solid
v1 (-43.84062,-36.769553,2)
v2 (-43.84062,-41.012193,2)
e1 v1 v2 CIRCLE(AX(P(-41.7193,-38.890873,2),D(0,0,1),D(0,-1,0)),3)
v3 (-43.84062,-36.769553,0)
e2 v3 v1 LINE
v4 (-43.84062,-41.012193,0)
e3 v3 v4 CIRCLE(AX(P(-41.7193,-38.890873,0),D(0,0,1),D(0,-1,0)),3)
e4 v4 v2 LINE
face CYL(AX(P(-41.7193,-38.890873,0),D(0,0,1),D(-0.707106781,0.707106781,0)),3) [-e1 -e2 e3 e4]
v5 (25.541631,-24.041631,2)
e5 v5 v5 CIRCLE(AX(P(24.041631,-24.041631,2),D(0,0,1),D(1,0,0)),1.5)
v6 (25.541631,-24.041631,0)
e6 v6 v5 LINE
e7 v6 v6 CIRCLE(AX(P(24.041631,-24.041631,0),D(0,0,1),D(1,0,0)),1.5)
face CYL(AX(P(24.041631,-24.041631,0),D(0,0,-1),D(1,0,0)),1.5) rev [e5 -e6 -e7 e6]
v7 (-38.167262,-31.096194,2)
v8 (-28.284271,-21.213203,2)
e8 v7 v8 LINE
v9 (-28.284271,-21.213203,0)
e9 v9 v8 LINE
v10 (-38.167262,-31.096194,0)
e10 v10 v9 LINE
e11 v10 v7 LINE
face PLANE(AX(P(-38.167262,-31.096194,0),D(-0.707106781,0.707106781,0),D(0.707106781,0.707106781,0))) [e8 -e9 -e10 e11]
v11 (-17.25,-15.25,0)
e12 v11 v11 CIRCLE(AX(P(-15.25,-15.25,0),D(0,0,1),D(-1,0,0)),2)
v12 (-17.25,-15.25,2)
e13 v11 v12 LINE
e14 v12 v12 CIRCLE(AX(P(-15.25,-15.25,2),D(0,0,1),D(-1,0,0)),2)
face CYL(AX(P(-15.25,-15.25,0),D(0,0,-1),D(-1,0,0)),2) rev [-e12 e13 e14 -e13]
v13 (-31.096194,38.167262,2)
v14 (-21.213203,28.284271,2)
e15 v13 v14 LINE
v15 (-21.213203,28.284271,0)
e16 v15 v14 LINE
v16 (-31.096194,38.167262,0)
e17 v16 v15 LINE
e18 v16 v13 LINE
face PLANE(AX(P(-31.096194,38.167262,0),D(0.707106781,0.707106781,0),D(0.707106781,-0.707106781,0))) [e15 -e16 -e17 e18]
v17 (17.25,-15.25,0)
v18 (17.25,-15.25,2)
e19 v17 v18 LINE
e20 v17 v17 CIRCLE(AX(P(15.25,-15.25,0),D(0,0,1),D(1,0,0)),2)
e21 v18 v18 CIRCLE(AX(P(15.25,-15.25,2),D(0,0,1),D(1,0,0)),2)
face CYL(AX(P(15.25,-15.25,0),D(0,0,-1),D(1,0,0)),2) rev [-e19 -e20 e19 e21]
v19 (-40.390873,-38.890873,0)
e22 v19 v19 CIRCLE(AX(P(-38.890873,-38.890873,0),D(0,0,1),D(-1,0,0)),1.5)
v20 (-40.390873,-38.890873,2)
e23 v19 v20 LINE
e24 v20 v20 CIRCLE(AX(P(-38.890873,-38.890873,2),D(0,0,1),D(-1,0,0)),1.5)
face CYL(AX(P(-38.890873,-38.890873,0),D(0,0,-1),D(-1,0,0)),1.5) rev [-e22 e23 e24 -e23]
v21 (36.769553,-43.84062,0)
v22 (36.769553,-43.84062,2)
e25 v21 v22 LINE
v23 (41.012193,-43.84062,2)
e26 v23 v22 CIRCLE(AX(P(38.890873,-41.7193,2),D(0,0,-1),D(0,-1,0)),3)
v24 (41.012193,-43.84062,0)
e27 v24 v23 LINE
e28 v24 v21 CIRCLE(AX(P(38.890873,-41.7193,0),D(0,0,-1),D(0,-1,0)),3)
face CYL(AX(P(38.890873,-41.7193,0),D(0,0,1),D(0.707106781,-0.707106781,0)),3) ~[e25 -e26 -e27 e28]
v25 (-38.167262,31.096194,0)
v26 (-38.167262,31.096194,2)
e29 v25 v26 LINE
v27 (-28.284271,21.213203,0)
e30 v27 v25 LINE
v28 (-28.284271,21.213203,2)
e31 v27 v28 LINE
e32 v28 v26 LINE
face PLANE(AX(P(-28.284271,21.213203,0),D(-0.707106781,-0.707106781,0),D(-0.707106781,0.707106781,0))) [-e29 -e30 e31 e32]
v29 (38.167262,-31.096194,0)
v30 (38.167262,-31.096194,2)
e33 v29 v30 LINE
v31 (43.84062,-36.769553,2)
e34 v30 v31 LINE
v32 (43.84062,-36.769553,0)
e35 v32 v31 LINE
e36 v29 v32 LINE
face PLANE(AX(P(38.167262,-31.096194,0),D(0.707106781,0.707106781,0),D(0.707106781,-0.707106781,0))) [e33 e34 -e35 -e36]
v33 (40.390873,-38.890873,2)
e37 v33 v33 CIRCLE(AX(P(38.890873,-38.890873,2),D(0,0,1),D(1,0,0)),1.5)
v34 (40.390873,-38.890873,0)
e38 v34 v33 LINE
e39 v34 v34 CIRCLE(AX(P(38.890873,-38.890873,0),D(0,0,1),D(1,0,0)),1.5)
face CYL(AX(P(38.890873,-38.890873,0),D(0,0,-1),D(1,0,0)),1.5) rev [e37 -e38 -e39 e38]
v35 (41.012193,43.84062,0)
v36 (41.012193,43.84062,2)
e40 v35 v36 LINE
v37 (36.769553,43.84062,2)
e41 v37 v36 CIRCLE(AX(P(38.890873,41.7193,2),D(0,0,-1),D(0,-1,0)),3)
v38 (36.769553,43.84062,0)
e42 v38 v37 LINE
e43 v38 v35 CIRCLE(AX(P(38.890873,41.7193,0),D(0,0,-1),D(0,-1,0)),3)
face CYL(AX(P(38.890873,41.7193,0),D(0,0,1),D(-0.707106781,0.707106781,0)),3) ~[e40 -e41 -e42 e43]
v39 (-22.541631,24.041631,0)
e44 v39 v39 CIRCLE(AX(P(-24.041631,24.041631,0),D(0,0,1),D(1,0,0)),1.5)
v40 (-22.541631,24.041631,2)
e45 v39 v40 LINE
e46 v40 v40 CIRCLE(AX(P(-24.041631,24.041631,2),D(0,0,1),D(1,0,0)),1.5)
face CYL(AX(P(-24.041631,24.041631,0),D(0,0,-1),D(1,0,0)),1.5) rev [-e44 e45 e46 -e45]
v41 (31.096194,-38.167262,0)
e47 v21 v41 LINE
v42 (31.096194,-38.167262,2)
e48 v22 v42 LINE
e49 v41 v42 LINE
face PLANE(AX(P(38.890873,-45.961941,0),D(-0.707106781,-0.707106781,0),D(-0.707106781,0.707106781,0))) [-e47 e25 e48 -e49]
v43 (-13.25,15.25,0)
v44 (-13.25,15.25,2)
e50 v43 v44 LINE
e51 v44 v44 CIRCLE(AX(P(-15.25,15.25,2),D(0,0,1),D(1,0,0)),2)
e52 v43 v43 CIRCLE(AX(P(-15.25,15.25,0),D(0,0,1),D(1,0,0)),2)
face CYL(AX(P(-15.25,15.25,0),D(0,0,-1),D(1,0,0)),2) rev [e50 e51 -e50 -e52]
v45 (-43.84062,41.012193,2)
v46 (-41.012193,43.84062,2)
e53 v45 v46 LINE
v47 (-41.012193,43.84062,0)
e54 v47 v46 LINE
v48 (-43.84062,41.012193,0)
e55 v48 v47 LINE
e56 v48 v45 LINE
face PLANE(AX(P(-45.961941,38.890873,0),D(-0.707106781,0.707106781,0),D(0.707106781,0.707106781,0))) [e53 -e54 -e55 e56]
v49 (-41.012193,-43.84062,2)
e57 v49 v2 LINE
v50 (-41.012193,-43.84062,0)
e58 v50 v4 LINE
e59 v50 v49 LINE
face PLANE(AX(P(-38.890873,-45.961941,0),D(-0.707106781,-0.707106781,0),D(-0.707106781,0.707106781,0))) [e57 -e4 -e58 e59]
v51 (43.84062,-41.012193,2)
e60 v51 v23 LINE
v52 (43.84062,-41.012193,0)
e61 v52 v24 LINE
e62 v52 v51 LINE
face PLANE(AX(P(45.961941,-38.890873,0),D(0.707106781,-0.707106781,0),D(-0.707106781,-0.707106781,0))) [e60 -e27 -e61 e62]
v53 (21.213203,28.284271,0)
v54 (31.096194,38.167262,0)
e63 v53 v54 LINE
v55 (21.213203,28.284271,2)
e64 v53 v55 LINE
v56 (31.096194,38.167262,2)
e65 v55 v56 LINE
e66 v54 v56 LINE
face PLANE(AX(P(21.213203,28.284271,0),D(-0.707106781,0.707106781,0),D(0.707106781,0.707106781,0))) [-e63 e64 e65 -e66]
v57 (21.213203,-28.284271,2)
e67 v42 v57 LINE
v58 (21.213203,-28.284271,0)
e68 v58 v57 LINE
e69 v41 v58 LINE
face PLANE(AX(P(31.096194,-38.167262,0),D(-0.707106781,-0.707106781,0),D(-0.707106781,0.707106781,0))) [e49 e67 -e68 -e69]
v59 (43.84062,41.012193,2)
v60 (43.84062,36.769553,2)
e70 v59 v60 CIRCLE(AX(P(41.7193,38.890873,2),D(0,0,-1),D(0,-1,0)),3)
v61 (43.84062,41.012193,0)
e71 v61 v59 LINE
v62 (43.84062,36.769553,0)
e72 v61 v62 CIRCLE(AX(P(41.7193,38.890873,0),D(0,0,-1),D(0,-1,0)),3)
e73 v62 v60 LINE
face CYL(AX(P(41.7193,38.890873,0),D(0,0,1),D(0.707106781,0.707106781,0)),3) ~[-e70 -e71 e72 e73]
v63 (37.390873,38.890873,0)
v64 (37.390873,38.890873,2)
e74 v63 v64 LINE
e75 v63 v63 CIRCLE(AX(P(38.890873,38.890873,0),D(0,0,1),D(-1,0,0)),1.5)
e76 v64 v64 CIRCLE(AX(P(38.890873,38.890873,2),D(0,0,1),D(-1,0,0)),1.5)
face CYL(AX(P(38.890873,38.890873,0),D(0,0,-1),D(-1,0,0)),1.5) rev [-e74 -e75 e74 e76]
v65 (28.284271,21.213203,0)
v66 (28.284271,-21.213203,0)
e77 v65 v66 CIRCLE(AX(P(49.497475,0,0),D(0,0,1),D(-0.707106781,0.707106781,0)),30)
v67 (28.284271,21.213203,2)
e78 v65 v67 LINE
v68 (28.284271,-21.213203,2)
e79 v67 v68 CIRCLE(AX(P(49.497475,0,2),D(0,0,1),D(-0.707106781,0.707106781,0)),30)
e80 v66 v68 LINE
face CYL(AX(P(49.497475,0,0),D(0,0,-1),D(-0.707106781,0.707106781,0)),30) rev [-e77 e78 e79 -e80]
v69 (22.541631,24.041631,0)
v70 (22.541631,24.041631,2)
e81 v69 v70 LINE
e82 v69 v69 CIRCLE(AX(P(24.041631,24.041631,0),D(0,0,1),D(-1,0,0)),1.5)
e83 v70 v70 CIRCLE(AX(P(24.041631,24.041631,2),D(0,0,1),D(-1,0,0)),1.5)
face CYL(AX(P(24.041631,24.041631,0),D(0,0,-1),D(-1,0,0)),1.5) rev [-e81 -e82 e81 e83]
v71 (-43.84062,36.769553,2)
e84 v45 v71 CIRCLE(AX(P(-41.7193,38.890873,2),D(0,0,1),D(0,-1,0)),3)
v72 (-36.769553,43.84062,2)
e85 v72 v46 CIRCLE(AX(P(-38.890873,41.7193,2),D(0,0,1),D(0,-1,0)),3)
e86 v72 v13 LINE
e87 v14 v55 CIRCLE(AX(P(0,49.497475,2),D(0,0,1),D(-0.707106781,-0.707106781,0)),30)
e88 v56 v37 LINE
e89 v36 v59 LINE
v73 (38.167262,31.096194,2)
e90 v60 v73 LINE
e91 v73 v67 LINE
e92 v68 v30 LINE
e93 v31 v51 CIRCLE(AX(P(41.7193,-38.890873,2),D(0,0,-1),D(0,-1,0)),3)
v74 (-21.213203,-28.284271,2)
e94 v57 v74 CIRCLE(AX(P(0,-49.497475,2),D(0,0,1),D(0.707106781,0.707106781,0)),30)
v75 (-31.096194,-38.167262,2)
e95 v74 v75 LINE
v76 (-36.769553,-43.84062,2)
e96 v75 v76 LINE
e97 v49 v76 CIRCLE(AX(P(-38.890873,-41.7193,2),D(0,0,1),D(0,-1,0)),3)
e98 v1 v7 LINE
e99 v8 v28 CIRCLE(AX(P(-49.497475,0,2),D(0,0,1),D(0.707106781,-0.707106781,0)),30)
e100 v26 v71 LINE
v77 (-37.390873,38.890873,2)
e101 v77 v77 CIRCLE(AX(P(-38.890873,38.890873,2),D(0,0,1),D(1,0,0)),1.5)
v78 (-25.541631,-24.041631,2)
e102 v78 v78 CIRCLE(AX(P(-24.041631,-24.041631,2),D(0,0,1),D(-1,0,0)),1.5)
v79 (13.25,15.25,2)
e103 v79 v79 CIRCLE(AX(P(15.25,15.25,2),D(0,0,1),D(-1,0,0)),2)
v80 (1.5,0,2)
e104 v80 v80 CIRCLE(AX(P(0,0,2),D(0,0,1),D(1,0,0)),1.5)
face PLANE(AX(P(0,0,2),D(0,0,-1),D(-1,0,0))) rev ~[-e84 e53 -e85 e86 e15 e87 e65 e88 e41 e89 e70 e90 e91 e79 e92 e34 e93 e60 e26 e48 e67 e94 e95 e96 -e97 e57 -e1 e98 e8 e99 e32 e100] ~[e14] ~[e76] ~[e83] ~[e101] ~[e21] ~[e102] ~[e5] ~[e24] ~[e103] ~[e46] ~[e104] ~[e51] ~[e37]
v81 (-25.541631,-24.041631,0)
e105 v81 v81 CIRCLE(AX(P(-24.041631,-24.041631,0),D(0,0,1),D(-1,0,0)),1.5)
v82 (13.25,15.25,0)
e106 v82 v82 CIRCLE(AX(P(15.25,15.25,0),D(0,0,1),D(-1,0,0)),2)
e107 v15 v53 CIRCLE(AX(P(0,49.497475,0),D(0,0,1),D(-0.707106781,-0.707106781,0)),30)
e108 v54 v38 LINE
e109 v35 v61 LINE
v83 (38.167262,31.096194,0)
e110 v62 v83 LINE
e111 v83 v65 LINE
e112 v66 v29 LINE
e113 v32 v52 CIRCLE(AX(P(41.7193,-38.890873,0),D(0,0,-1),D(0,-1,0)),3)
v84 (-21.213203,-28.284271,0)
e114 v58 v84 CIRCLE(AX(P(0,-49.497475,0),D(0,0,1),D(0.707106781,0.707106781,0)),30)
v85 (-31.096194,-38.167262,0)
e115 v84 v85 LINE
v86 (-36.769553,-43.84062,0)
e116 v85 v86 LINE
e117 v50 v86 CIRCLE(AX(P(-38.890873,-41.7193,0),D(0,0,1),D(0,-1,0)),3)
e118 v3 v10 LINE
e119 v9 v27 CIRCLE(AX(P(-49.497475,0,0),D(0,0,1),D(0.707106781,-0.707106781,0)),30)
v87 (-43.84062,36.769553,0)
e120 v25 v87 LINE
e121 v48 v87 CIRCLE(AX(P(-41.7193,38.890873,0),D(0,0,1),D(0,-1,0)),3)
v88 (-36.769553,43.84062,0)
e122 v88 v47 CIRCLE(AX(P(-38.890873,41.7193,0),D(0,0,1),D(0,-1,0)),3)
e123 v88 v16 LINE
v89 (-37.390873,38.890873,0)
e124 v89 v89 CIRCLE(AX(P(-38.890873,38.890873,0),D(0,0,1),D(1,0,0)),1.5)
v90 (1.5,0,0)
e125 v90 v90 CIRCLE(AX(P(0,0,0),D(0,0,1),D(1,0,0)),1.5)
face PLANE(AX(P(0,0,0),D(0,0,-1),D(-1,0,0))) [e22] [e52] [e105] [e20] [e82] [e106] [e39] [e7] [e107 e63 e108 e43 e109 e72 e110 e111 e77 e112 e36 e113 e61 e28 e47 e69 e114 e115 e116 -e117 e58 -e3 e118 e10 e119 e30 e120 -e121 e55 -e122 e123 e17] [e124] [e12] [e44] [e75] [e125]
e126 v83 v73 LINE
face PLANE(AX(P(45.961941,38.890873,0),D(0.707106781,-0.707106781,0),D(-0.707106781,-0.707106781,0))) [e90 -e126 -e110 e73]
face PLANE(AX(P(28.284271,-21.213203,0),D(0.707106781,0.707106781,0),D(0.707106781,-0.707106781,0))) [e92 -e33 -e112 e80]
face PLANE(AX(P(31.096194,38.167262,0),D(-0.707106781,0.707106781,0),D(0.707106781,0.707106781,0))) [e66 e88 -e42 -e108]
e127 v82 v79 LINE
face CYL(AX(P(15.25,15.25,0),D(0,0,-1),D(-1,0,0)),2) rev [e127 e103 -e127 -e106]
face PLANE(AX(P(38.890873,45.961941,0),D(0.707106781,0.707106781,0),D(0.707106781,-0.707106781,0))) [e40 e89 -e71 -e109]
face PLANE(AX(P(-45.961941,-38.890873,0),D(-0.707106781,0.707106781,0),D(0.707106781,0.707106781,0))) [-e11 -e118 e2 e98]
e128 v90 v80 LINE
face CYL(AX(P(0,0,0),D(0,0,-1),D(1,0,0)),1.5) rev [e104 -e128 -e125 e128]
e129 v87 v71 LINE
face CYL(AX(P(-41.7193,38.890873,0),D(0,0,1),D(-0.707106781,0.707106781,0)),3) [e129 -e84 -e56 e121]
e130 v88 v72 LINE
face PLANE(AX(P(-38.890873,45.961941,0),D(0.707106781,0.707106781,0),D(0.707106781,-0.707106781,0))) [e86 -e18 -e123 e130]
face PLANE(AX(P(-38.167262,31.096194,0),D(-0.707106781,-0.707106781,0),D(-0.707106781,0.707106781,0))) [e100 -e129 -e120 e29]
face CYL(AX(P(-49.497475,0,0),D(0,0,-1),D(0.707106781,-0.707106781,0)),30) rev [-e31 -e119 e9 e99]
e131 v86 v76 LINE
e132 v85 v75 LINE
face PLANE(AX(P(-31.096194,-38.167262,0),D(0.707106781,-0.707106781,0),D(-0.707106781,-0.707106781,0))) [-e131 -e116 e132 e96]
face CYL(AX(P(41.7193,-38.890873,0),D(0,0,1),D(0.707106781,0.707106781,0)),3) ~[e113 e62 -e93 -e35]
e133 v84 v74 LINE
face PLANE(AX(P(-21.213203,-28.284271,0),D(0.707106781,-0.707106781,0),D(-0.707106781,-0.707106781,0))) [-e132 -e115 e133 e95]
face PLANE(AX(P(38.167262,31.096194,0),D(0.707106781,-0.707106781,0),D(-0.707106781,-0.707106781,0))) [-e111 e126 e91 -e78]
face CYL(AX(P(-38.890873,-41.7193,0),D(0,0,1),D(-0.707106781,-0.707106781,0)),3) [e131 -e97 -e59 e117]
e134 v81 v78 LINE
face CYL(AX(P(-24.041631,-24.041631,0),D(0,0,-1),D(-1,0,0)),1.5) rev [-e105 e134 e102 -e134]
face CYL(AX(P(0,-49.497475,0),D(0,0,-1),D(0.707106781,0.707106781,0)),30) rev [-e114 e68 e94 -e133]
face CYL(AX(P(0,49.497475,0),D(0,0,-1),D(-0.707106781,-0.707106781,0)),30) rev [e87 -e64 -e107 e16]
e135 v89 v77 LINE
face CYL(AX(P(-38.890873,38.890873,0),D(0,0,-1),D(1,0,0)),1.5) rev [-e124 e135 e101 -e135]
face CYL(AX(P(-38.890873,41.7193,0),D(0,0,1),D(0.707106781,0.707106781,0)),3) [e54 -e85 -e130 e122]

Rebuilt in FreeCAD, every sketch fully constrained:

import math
import FreeCAD as App
import Part
import Sketcher

V = App.Vector


def edges_at(feature, points):
    """Names of the edges that pass closest to the given points."""
    edges = feature.Shape.Edges
    near = lambda p: min(range(len(edges)), key=lambda i: edges[i].distToShape(Part.Vertex(*p))[0])
    return sorted({f"Edge{near(p) + 1}" for p in points})

doc = App.newDocument("Part")
body = doc.addObject("PartDesign::Body", "Body")

# Sketch on XY plane
sketch1 = doc.addObject("Sketcher::SketchObject", "Sketch")
body.addObject(sketch1)
sketch1.AttachmentSupport = (doc.XY_Plane, [""])
sketch1.MapMode = "FlatFace"
sketch1.addGeometry([
    Part.LineSegment(V(-21.2, 28.3, 0), V(-31.1, 38.2, 0)),  # 0
    Part.LineSegment(V(-31.1, 38.2, 0), V(-38.9, 46, 0)),  # 1
    Part.LineSegment(V(-38.9, 46, 0), V(-46, 38.9, 0)),  # 2
    Part.LineSegment(V(-46, 38.9, 0), V(-38.2, 31.1, 0)),  # 3
    Part.LineSegment(V(-38.2, 31.1, 0), V(-28.3, 21.2, 0)),  # 4
    Part.ArcOfCircle(Part.Circle(V(-49.5, 0, 0), V(0, 0, 1), 30), math.radians(-45), math.radians(45)),  # 5
    Part.LineSegment(V(-28.3, -21.2, 0), V(-38.2, -31.1, 0)),  # 6
    Part.LineSegment(V(-38.2, -31.1, 0), V(-46, -38.9, 0)),  # 7
    Part.LineSegment(V(-46, -38.9, 0), V(-38.9, -46, 0)),  # 8
    Part.LineSegment(V(-38.9, -46, 0), V(-31.1, -38.2, 0)),  # 9
    Part.LineSegment(V(-31.1, -38.2, 0), V(-21.2, -28.3, 0)),  # 10
    Part.ArcOfCircle(Part.Circle(V(0, -49.5, 0), V(0, 0, 1), 30), math.radians(45), math.radians(135)),  # 11
    Part.LineSegment(V(21.2, -28.3, 0), V(31.1, -38.2, 0)),  # 12
    Part.LineSegment(V(31.1, -38.2, 0), V(38.9, -46, 0)),  # 13
    Part.LineSegment(V(38.9, -46, 0), V(46, -38.9, 0)),  # 14
    Part.LineSegment(V(46, -38.9, 0), V(38.2, -31.1, 0)),  # 15
    Part.LineSegment(V(38.2, -31.1, 0), V(28.3, -21.2, 0)),  # 16
    Part.ArcOfCircle(Part.Circle(V(49.5, 0, 0), V(0, 0, 1), 30), math.radians(135), math.radians(225)),  # 17
    Part.LineSegment(V(28.3, 21.2, 0), V(38.2, 31.1, 0)),  # 18
    Part.LineSegment(V(38.2, 31.1, 0), V(46, 38.9, 0)),  # 19
    Part.LineSegment(V(46, 38.9, 0), V(38.9, 46, 0)),  # 20
    Part.LineSegment(V(38.9, 46, 0), V(31.1, 38.2, 0)),  # 21
    Part.LineSegment(V(31.1, 38.2, 0), V(21.2, 28.3, 0)),  # 22
    Part.ArcOfCircle(Part.Circle(V(0, 49.5, 0), V(0, 0, 1), 30), math.radians(-135), math.radians(-45)),  # 23
    Part.Circle(V(38.9, -38.9, 0), V(0, 0, 1), 1.5),  # 24
    Part.Circle(V(24, -24, 0), V(0, 0, 1), 1.5),  # 25
    Part.Circle(V(15.2, -15.2, 0), V(0, 0, 1), 2),  # 26
    Part.Circle(V(0, 0, 0), V(0, 0, 1), 1.5),  # 27
    Part.Circle(V(-38.9, -38.9, 0), V(0, 0, 1), 1.5),  # 28
    Part.Circle(V(-24, -24, 0), V(0, 0, 1), 1.5),  # 29
    Part.Circle(V(-15.2, -15.2, 0), V(0, 0, 1), 2),  # 30
    Part.Circle(V(15.2, 15.2, 0), V(0, 0, 1), 2),  # 31
    Part.Circle(V(24, 24, 0), V(0, 0, 1), 1.5),  # 32
    Part.Circle(V(38.9, 38.9, 0), V(0, 0, 1), 1.5),  # 33
    Part.Circle(V(-15.2, 15.2, 0), V(0, 0, 1), 2),  # 34
    Part.Circle(V(-24, 24, 0), V(0, 0, 1), 1.5),  # 35
    Part.Circle(V(-38.9, 38.9, 0), V(0, 0, 1), 1.5),  # 36
], False)
sketch1.addConstraint([
    Sketcher.Constraint("Coincident", 0, 2, 1, 1),
    Sketcher.Constraint("Coincident", 1, 2, 2, 1),
    Sketcher.Constraint("Coincident", 2, 2, 3, 1),
    Sketcher.Constraint("Coincident", 3, 2, 4, 1),
    Sketcher.Constraint("Tangent", 4, 2, 5, 2),
    Sketcher.Constraint("Tangent", 5, 1, 6, 1),
    Sketcher.Constraint("Coincident", 6, 2, 7, 1),
    Sketcher.Constraint("Coincident", 7, 2, 8, 1),
    Sketcher.Constraint("Coincident", 8, 2, 9, 1),
    Sketcher.Constraint("Coincident", 9, 2, 10, 1),
    Sketcher.Constraint("Tangent", 10, 2, 11, 2),
    Sketcher.Constraint("Tangent", 11, 1, 12, 1),
    Sketcher.Constraint("Coincident", 12, 2, 13, 1),
    Sketcher.Constraint("Coincident", 13, 2, 14, 1),
    Sketcher.Constraint("Coincident", 14, 2, 15, 1),
    Sketcher.Constraint("Coincident", 15, 2, 16, 1),
    Sketcher.Constraint("Tangent", 16, 2, 17, 2),
    Sketcher.Constraint("Tangent", 17, 1, 18, 1),
    Sketcher.Constraint("Coincident", 18, 2, 19, 1),
    Sketcher.Constraint("Coincident", 19, 2, 20, 1),
    Sketcher.Constraint("Coincident", 20, 2, 21, 1),
    Sketcher.Constraint("Coincident", 21, 2, 22, 1),
    Sketcher.Constraint("Tangent", 22, 2, 23, 2),
    Sketcher.Constraint("Tangent", 23, 1, 0, 1),
    Sketcher.Constraint("Coincident", 27, 3, -1, 1),
    Sketcher.Constraint("Equal", 5, 11),
    Sketcher.Constraint("Equal", 11, 17),
    Sketcher.Constraint("Equal", 17, 23),
    Sketcher.Constraint("Equal", 24, 25),
    Sketcher.Constraint("Equal", 25, 27),
    Sketcher.Constraint("Equal", 27, 28),
    Sketcher.Constraint("Equal", 28, 29),
    Sketcher.Constraint("Equal", 26, 30),
    Sketcher.Constraint("Equal", 30, 31),
    Sketcher.Constraint("Equal", 29, 32),
    Sketcher.Constraint("Equal", 32, 33),
    Sketcher.Constraint("Equal", 31, 34),
    Sketcher.Constraint("Equal", 33, 35),
    Sketcher.Constraint("Equal", 35, 36),
    Sketcher.Constraint("Symmetric", 5, 3, 17, 3, -1, 1),
    Sketcher.Constraint("Symmetric", 11, 3, 23, 3, -1, 1),
    Sketcher.Constraint("Symmetric", 30, 3, 31, 3, -1, 1),
    Sketcher.Constraint("Symmetric", 29, 3, 32, 3, -1, 1),
    Sketcher.Constraint("Symmetric", 28, 3, 33, 3, -1, 1),
    Sketcher.Constraint("Symmetric", 26, 3, 34, 3, -1, 1),
    Sketcher.Constraint("Symmetric", 25, 3, 35, 3, -1, 1),
    Sketcher.Constraint("Symmetric", 24, 3, 36, 3, -1, 1),
    Sketcher.Constraint("Symmetric", 0, 2, 12, 2, -1, 1),
    Sketcher.Constraint("Symmetric", 1, 2, 13, 2, -1, 1),
    Sketcher.Constraint("Symmetric", 2, 2, 14, 2, -1, 1),
    Sketcher.Constraint("Symmetric", 3, 2, 15, 2, -1, 1),
    Sketcher.Constraint("Symmetric", 6, 2, 18, 2, -1, 1),
    Sketcher.Constraint("Symmetric", 7, 2, 19, 2, -1, 1),
    Sketcher.Constraint("Symmetric", 8, 2, 20, 2, -1, 1),
    Sketcher.Constraint("Symmetric", 9, 2, 21, 2, -1, 1),
    Sketcher.Constraint("Symmetric", 24, 3, 28, 3, -2),
    Sketcher.Constraint("Symmetric", 25, 3, 29, 3, -2),
    Sketcher.Constraint("Symmetric", 26, 3, 30, 3, -2),
    Sketcher.Constraint("Symmetric", 10, 2, 11, 1, -2),
    Sketcher.Constraint("Symmetric", 8, 2, 13, 2, -2),
    Sketcher.Constraint("Symmetric", 7, 2, 14, 2, -2),
    Sketcher.Constraint("Symmetric", 6, 2, 15, 2, -2),
    Sketcher.Constraint("PointOnObject", 5, 3, -1),
    Sketcher.Constraint("Parallel", 0, 1),
    Sketcher.Constraint("Perpendicular", 1, 2),
    Sketcher.Constraint("Perpendicular", 2, 3),
    Sketcher.Constraint("Parallel", 3, 4),
    Sketcher.Constraint("Perpendicular", 4, 6),
    Sketcher.Constraint("Horizontal", 36, 3, 2, 2),
    Sketcher.Constraint("Horizontal", 9, 2, 12, 2),
    Sketcher.Constraint("Vertical", 36, 3, 1, 2),
    Sketcher.Constraint("Equal", 1, 3),
    Sketcher.Constraint("Equal", 0, 4),
    Sketcher.Constraint("Diameter", 24, 3.0),
    Sketcher.Constraint("Diameter", 26, 4.0),
    Sketcher.Constraint("Radius", 5, 30.0),
    Sketcher.Constraint("Distance", 2, 10.0),
    Sketcher.Constraint("DistanceX", 30, 3, 26, 3, 30.5),
    Sketcher.Constraint("DistanceY", 26, 3, 31, 3, 30.5),
    Sketcher.Constraint("DistanceY", 11, 3, 24, 3, 10.606602),
    Sketcher.Constraint("Distance", 0, 13.976659),
    Sketcher.Constraint("DistanceX", -1, 1, 25, 3, 24.041631),
    Sketcher.Constraint("DistanceY", 25, 3, -1, 1, 24.041631),
])
pad1 = doc.addObject("PartDesign::Pad", "Pad")
body.addObject(pad1)
pad1.Profile = sketch1
pad1.Length = 2
doc.recompute()

fillet = doc.addObject("PartDesign::Fillet", "Fillet")
body.addObject(fillet)
fillet.Base = (pad1, edges_at(pad1, [
    (-38.891, 45.962, 1),
    (38.891, 45.962, 1),
    (45.962, 38.891, 1),
    (45.962, -38.891, 1),
    (38.891, -45.962, 1),
    (-38.891, -45.962, 1),
    (-45.962, -38.891, 1),
    (-45.962, 38.891, 1),
]))
fillet.Radius = 3

doc.recompute()
